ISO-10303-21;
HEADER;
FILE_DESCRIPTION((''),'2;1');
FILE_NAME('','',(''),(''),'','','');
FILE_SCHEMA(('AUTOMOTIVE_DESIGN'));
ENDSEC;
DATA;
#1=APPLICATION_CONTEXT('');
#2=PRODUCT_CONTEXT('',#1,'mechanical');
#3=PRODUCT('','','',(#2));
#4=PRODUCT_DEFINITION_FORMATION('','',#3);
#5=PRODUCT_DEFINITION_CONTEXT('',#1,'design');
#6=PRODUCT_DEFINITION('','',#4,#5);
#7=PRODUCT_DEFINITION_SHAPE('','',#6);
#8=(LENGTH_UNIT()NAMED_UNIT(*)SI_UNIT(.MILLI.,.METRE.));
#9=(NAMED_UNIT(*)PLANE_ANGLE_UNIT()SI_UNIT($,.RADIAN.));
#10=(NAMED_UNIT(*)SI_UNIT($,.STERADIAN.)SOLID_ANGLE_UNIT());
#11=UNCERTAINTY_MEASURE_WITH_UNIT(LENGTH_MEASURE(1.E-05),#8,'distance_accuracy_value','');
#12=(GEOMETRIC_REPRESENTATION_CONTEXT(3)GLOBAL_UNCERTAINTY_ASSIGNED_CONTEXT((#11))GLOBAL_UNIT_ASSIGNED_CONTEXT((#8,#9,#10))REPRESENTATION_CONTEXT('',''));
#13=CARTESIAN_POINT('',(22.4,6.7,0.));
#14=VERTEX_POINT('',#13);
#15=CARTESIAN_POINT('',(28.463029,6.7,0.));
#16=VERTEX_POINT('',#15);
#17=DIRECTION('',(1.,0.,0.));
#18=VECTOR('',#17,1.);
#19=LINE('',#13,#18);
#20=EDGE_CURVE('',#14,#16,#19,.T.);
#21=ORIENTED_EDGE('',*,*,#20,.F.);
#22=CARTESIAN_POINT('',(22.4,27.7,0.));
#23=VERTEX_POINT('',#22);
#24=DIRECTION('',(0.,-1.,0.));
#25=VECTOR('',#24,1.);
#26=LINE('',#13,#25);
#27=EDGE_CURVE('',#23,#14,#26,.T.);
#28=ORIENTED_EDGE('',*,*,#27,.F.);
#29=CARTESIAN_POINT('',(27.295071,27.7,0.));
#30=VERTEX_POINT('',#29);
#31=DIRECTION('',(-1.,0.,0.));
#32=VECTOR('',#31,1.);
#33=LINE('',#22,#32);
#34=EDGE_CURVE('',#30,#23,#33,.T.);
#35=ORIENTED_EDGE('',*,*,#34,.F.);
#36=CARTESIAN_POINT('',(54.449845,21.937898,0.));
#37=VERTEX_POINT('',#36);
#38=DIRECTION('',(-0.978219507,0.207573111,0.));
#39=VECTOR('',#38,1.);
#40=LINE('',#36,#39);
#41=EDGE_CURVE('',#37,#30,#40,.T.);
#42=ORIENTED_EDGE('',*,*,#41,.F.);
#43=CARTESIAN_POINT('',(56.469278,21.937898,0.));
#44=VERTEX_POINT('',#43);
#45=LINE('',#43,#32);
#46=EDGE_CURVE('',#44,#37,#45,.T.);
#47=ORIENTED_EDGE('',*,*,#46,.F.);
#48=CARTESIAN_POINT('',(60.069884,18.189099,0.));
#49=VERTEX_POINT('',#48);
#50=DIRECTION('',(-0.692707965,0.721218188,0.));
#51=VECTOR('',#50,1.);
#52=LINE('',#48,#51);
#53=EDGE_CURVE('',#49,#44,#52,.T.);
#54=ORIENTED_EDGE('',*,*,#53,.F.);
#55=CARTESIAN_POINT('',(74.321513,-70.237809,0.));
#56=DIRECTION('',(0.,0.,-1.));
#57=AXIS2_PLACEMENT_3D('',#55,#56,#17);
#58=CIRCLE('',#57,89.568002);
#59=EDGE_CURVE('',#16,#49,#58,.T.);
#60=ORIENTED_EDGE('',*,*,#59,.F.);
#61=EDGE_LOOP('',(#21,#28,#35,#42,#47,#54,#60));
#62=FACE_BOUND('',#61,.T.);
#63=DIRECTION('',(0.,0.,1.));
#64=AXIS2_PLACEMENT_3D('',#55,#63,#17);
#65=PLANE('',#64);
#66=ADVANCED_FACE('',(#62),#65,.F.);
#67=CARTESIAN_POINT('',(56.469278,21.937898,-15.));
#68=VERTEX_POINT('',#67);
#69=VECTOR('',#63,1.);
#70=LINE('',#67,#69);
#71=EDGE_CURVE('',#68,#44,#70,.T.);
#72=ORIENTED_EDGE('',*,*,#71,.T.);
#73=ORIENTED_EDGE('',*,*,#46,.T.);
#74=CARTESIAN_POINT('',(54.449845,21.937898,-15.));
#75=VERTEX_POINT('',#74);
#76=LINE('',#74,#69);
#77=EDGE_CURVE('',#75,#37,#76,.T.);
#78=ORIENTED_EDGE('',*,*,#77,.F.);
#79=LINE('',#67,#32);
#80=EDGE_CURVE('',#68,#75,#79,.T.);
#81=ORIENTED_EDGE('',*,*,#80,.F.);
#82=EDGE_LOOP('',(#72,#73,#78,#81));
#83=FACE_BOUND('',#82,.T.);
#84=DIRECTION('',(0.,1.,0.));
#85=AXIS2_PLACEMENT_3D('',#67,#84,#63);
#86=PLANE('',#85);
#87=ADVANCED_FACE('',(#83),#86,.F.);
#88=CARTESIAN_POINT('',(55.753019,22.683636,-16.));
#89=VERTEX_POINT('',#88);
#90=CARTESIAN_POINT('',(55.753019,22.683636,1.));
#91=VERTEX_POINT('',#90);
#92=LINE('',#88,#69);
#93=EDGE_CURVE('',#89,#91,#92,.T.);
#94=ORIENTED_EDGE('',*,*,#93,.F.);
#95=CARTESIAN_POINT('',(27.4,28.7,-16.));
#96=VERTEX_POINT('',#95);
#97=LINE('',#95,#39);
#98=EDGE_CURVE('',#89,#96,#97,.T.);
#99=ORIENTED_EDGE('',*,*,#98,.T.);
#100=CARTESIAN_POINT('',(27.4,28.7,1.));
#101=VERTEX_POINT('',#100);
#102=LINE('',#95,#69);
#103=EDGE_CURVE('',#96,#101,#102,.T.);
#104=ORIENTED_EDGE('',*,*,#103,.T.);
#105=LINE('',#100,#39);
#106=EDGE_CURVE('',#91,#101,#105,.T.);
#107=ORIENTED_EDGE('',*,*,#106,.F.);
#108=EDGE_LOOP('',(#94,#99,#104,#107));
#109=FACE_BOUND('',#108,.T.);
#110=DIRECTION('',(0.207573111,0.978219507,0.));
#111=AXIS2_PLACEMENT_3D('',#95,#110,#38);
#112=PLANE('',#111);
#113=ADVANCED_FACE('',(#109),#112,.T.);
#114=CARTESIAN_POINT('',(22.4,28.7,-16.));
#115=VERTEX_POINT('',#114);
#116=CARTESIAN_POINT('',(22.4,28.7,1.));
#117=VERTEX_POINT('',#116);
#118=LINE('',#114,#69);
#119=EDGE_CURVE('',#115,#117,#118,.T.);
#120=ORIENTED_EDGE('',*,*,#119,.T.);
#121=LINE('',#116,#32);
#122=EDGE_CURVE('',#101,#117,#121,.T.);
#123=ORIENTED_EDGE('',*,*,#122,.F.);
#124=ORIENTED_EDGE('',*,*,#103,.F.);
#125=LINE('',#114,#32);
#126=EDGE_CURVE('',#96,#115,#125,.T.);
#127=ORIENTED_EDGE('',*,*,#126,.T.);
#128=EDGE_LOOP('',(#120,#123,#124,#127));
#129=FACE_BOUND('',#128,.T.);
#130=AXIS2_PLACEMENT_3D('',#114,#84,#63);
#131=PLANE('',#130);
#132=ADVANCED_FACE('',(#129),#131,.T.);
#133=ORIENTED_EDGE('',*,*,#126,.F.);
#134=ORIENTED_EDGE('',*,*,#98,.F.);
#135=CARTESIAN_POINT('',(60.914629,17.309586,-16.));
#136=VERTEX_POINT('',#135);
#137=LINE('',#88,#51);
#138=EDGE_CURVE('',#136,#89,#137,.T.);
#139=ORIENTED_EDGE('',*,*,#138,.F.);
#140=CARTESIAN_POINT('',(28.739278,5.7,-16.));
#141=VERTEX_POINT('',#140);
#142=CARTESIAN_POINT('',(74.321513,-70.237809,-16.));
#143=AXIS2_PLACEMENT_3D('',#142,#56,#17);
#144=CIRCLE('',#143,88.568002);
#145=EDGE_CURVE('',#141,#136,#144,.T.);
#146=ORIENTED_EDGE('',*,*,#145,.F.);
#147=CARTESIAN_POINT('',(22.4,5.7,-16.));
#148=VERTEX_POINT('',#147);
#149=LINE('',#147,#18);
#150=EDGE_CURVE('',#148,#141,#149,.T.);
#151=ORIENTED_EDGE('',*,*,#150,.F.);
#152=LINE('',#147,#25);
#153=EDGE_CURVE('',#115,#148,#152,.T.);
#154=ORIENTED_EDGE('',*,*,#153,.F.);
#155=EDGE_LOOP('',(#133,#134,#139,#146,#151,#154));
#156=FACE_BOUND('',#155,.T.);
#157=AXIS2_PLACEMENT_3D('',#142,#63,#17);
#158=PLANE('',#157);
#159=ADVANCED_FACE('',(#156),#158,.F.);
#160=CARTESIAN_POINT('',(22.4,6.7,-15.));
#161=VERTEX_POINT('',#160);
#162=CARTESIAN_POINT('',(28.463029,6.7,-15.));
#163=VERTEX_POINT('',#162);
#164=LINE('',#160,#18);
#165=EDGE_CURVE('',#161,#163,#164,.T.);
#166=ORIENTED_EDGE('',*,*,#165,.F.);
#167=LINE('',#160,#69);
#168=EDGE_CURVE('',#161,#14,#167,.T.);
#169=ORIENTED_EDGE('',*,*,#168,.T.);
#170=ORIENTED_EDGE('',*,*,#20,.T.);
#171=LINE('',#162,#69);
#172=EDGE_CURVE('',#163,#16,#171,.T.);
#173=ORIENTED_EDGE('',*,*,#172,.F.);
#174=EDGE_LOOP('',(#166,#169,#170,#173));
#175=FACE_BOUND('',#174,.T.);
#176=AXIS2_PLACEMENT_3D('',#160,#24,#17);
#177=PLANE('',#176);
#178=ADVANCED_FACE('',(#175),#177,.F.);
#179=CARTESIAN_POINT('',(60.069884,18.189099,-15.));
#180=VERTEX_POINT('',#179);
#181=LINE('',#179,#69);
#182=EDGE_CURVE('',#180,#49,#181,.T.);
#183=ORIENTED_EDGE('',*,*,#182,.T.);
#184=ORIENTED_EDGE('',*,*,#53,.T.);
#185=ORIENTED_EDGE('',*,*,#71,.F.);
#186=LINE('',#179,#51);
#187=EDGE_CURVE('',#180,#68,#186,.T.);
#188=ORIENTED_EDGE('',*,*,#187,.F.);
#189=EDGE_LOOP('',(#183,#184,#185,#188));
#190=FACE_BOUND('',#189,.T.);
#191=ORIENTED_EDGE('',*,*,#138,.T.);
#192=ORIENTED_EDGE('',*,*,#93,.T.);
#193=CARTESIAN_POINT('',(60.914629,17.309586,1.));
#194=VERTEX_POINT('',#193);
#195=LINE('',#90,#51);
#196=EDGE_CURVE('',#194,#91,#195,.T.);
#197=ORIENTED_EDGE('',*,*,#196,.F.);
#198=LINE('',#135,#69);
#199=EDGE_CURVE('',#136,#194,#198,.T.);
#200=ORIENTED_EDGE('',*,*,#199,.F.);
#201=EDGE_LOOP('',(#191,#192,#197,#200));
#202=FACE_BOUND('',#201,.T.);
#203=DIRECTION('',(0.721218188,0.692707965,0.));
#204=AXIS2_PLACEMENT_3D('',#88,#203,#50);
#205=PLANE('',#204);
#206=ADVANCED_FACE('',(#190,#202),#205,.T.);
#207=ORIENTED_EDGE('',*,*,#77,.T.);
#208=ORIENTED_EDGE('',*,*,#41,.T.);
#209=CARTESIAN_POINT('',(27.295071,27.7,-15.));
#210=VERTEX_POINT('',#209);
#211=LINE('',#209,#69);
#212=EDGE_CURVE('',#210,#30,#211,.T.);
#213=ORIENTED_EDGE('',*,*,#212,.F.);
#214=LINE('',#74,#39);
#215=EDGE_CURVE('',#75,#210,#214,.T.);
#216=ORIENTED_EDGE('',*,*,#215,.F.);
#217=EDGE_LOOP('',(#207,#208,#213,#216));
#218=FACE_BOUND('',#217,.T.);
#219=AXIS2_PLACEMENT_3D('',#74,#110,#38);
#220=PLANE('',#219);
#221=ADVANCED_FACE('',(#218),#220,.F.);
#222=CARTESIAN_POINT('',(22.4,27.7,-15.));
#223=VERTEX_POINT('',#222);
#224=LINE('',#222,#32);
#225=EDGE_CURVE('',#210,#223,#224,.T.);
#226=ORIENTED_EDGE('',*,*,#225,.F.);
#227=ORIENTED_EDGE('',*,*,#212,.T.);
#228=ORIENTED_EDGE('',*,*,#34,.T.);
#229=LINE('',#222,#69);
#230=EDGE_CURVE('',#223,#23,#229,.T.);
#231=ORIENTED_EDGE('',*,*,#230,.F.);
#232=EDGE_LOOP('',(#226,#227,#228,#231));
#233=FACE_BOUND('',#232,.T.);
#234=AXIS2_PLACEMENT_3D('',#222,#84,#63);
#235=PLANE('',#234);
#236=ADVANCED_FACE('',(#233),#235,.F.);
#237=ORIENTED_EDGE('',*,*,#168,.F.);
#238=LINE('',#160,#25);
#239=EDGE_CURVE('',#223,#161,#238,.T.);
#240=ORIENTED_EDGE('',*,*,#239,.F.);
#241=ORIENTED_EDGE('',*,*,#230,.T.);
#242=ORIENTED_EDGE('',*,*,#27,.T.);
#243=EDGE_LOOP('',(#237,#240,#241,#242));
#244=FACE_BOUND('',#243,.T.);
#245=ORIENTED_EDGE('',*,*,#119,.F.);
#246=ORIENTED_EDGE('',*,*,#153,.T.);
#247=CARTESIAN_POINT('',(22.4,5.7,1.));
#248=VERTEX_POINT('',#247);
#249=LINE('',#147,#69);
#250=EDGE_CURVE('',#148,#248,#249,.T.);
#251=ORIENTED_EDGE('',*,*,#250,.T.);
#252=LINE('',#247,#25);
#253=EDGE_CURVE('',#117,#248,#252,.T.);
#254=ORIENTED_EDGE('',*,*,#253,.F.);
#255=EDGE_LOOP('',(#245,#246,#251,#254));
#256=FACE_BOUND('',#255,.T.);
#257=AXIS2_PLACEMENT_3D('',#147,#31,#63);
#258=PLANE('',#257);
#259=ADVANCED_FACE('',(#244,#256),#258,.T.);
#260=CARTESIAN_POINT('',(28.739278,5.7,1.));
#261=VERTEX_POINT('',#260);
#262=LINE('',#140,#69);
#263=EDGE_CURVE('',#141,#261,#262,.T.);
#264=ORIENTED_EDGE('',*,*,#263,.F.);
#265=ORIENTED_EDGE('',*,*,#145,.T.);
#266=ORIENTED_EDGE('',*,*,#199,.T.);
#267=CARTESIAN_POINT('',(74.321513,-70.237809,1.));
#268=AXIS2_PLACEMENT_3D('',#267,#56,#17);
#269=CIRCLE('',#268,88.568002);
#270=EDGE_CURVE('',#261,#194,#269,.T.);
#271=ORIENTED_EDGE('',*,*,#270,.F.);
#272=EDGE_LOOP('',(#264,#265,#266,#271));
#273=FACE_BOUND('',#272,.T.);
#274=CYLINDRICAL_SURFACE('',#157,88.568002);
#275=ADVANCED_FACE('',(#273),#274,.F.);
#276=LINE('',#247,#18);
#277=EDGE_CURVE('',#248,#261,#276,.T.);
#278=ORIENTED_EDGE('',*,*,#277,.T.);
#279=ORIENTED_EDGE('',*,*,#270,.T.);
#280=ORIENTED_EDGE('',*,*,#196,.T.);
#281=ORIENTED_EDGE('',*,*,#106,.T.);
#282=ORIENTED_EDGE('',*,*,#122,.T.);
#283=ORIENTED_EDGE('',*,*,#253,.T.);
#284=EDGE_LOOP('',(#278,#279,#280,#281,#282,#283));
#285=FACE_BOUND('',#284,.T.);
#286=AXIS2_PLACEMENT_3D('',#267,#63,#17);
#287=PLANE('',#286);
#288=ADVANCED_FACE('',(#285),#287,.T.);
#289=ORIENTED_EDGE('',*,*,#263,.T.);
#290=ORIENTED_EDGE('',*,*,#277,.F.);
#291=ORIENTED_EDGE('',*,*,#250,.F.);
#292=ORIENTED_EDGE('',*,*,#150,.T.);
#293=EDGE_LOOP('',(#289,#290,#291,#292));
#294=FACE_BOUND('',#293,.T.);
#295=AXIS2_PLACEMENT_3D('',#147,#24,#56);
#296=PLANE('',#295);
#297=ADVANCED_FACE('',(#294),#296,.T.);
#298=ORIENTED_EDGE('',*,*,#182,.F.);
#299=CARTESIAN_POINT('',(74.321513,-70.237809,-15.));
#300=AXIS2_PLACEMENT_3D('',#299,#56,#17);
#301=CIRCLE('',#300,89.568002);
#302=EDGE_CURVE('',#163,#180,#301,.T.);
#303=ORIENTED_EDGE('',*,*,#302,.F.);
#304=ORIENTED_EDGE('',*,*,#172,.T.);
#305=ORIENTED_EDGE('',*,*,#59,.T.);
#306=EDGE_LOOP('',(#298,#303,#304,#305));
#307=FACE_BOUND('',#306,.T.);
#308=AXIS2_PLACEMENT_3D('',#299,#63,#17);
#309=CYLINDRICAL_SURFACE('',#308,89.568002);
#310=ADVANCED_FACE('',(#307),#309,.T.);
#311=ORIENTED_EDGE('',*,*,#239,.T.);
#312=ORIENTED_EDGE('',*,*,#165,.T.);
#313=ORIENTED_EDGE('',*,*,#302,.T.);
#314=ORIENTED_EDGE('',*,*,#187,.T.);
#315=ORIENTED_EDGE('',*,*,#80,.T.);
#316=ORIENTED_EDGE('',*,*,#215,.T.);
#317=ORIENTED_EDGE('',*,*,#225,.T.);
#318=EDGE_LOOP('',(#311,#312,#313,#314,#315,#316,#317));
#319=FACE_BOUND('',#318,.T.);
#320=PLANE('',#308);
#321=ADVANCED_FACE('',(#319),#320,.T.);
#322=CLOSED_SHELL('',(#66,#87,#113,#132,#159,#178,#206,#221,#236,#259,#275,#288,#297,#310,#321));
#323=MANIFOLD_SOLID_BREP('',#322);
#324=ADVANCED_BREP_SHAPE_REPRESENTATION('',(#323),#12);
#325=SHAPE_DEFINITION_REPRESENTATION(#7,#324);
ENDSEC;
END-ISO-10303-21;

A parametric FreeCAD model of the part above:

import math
import FreeCAD as App
import Part
import Sketcher

V = App.Vector

doc = App.newDocument("Part")
body = doc.addObject("PartDesign::Body", "Body")

sketch1 = body.newObject("Sketcher::SketchObject", "Sketch")
sketch1.AttachmentSupport = (doc.getObject("XY_Plane"), [""])
sketch1.MapMode = "FlatFace"
sketch1.AttachmentOffset = App.Placement(V(0, 0, 1), App.Rotation())
sketch1.addGeometry(Part.LineSegment(V(22, 29, 0), V(22, 6, 0)), False)
sketch1.addGeometry(Part.LineSegment(V(22, 6, 0), V(29, 6, 0)), False)
sketch1.addGeometry(Part.ArcOfCircle(Part.Circle(V(74, -70, 0), V(0, 0, 1), 89), math.radians(99), math.radians(121)), False)
sketch1.addGeometry(Part.LineSegment(V(61, 17, 0), V(56, 23, 0)), False)
sketch1.addGeometry(Part.LineSegment(V(56, 23, 0), V(27, 29, 0)), False)
sketch1.addGeometry(Part.LineSegment(V(27, 29, 0), V(22, 29, 0)), False)
sketch1.addConstraint(Sketcher.Constraint("Coincident", 0, 2, 1, 1))
sketch1.addConstraint(Sketcher.Constraint("Coincident", 1, 2, 2, 2))
sketch1.addConstraint(Sketcher.Constraint("Coincident", 2, 1, 3, 1))
sketch1.addConstraint(Sketcher.Constraint("Coincident", 3, 2, 4, 1))
sketch1.addConstraint(Sketcher.Constraint("Coincident", 4, 2, 5, 1))
sketch1.addConstraint(Sketcher.Constraint("Coincident", 5, 2, 0, 1))
sketch1.addConstraint(Sketcher.Constraint("Vertical", 0))
sketch1.addConstraint(Sketcher.Constraint("Horizontal", 1))
sketch1.addConstraint(Sketcher.Constraint("Horizontal", 5))
sketch1.addConstraint(Sketcher.Constraint("DistanceX", 5, 2, 5, 1, 5.0))
sketch1.addConstraint(Sketcher.Constraint("DistanceY", 0, 2, 0, 1, 23.0))
sketch1.addConstraint(Sketcher.Constraint("DistanceX", -1, 1, 0, 2, 22.4))
sketch1.addConstraint(Sketcher.Constraint("DistanceY", -1, 1, 0, 2, 5.7))
sketch1.addConstraint(Sketcher.Constraint("Radius", 2, 88.568002))
sketch1.addConstraint(Sketcher.Constraint("DistanceX", 1, 1, 1, 2, 6.339278))
sketch1.addConstraint(Sketcher.Constraint("Distance", 3, 7.451351))
sketch1.addConstraint(Sketcher.Constraint("Distance", 4, 28.984311))
sketch1.addConstraint(Sketcher.Constraint("DistanceY", 2, 3, -1, 1, 70.237809))
sketch1.addConstraint(Sketcher.Constraint("DistanceX", -1, 1, 2, 1, 60.914629))
pad1 = body.newObject("PartDesign::Pad", "Pad")
pad1.Profile = sketch1
pad1.Length = 17
pad1.Reversed = True

sketch2 = body.newObject("Sketcher::SketchObject", "Sketch001")
sketch2.AttachmentSupport = (doc.getObject("XY_Plane"), [""])
sketch2.MapMode = "FlatFace"
sketch2.addGeometry(Part.LineSegment(V(22.4, 6.7, 0), V(28.5, 6.7, 0)), False)
sketch2.addGeometry(Part.ArcOfCircle(Part.Circle(V(74.3, -70.2, 0), V(0, 0, 1), 89.6), math.radians(99), math.radians(121)), False)
sketch2.addGeometry(Part.LineSegment(V(60.1, 18.2, 0), V(56.5, 21.9, 0)), False)
sketch2.addGeometry(Part.LineSegment(V(56.5, 21.9, 0), V(54.4, 21.9, 0)), False)
sketch2.addGeometry(Part.LineSegment(V(54.4, 21.9, 0), V(27.3, 27.7, 0)), False)
sketch2.addGeometry(Part.LineSegment(V(27.3, 27.7, 0), V(22.4, 27.7, 0)), False)
sketch2.addGeometry(Part.LineSegment(V(22.4, 27.7, 0), V(22.4, 6.7, 0)), False)
sketch2.addConstraint(Sketcher.Constraint("Coincident", 0, 2, 1, 2))
sketch2.addConstraint(Sketcher.Constraint("Coincident", 1, 1, 2, 1))
sketch2.addConstraint(Sketcher.Constraint("Coincident", 2, 2, 3, 1))
sketch2.addConstraint(Sketcher.Constraint("Coincident", 3, 2, 4, 1))
sketch2.addConstraint(Sketcher.Constraint("Coincident", 4, 2, 5, 1))
sketch2.addConstraint(Sketcher.Constraint("Coincident", 5, 2, 6, 1))
sketch2.addConstraint(Sketcher.Constraint("Coincident", 6, 2, 0, 1))
sketch2.addConstraint(Sketcher.Constraint("Horizontal", 0))
sketch2.addConstraint(Sketcher.Constraint("Horizontal", 3))
sketch2.addConstraint(Sketcher.Constraint("Horizontal", 5))
sketch2.addConstraint(Sketcher.Constraint("Vertical", 6))
sketch2.addConstraint(Sketcher.Constraint("DistanceY", 6, 2, 6, 1, 21.0))
sketch2.addConstraint(Sketcher.Constraint("DistanceY", -1, 1, 0, 2, 6.7))
sketch2.addConstraint(Sketcher.Constraint("DistanceX", -1, 1, 5, 2, 22.4))
sketch2.addConstraint(Sketcher.Constraint("Radius", 1, 89.568002))
sketch2.addConstraint(Sketcher.Constraint("DistanceX", 0, 1, 0, 2, 6.063029))
sketch2.addConstraint(Sketcher.Constraint("DistanceX", 5, 2, 5, 1, 4.895071))
sketch2.addConstraint(Sketcher.Constraint("DistanceY", -1, 1, 1, 1, 18.189099))
sketch2.addConstraint(Sketcher.Constraint("DistanceY", 1, 1, 2, 2, 3.748799))
sketch2.addConstraint(Sketcher.Constraint("Distance", 2, 5.19787))
sketch2.addConstraint(Sketcher.Constraint("DistanceX", 3, 2, 3, 1, 2.019433))
sketch2.addConstraint(Sketcher.Constraint("DistanceY", 1, 3, -1, 1, 70.237809))
pocket1 = body.newObject("PartDesign::Pocket", "Pocket")
pocket1.Profile = sketch2
pocket1.Length = 15

doc.recompute()
